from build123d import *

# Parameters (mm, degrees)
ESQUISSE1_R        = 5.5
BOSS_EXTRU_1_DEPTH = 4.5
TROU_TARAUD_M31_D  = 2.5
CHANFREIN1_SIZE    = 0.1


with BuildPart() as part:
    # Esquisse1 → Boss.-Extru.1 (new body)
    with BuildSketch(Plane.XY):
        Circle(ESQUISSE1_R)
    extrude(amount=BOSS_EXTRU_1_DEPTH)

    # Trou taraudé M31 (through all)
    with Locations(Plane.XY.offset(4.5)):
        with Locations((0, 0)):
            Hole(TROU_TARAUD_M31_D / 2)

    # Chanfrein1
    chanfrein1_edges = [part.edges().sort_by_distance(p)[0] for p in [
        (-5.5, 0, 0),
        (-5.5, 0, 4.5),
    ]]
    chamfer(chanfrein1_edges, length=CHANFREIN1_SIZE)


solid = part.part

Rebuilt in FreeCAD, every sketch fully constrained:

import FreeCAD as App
import Part
import Sketcher
Q = App.Units.Quantity


def edges_at(feature, points):
    """Names of the edges that pass closest to the given points."""
    edges = feature.Shape.Edges
    near = lambda p: min(range(len(edges)), key=lambda i: edges[i].distToShape(Part.Vertex(*p))[0])
    return sorted({f"Edge{near(p) + 1}" for p in points})

doc = App.newDocument("Part")
body = doc.addObject("PartDesign::Body", "Body")

sketch1 = body.newObject("Sketcher::SketchObject", "Sketch")
sketch1.AttachmentSupport = (doc.getObject("XY_Plane"), [""])
sketch1.MapMode = "FlatFace"
sketch1.addGeometry(Part.Circle(App.Vector(0, 0, 0), App.Vector(0, 0, 1), 6), False)
sketch1.addConstraint([
    Sketcher.Constraint("Coincident", 0, 3, -1, 1),
    Sketcher.Constraint("Diameter", 0, Q("11 mm")),
])
pad1 = body.newObject("PartDesign::Pad", "Pad")
pad1.Profile = sketch1
pad1.Length = 4.5

sketch2 = body.newObject("Sketcher::SketchObject", "Sketch001")
sketch2.AttachmentSupport = (doc.getObject("XY_Plane"), [""])
sketch2.MapMode = "FlatFace"
sketch2.AttachmentOffset = App.Placement(App.Vector(0, 0, 4.5), App.Rotation())
sketch2.addGeometry(Part.Circle(App.Vector(0, 0, 0), App.Vector(0, 0, 1), 1.2), False)
sketch2.addConstraint([
    Sketcher.Constraint("Coincident", 0, 3, -1, 1),
    Sketcher.Constraint("Diameter", 0, Q("2.5 mm")),
])
doc.recompute()
hole = body.newObject("PartDesign::Hole", "Hole")
hole.Profile = sketch2
hole.ThreadType = "None"
hole.Diameter = 2.5
hole.DepthType = "ThroughAll"
doc.recompute()

chamfer = body.newObject("PartDesign::Chamfer", "Chamfer")
chamfer.Base = (hole, edges_at(hole, [(-5.5, 0, 0), (-5.5, 0, 4.5)]))
chamfer.Size = 0.1

doc.recompute()
